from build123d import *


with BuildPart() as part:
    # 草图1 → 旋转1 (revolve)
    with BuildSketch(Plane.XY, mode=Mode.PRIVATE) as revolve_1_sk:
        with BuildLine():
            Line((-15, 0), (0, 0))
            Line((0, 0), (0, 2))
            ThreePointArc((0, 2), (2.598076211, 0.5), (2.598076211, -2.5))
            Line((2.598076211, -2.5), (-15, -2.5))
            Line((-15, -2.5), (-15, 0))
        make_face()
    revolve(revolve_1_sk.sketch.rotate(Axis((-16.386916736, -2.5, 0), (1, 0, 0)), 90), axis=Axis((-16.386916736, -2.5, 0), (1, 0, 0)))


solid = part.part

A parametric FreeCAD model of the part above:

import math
import FreeCAD as App
import Part
import Sketcher
from FreeCAD import Vector
Q = App.Units.Quantity

doc = App.newDocument("Part")
body = doc.addObject("PartDesign::Body", "Body")

sketch1 = body.newObject("Sketcher::SketchObject", "Sketch")
sketch1.AttachmentSupport = (doc.getObject("XY_Plane"), [""])
sketch1.MapMode = "FlatFace"
sketch1.addGeometry([
    Part.LineSegment(Vector(0, 0, 0), Vector(-15, 0, 0)),
    Part.LineSegment(Vector(-15, 0, 0), Vector(-15, -2.5, 0)),
    Part.LineSegment(Vector(-15, -2.5, 0), Vector(2.6, -2.5, 0)),
    Part.ArcOfCircle(Part.Circle(Vector(0, -1, 0), Vector(0, 0, 1), 3), math.radians(-30), math.radians(90)),
    Part.LineSegment(Vector(0, 2, 0), Vector(0, 0, 0)),
], False)
sketch1.addGeometry(Part.LineSegment(Vector(-15, -2.5, 0), Vector(2.6, -2.5, 0)), True)
sketch1.addConstraint([
    Sketcher.Constraint("Coincident", 0, 2, 1, 1),
    Sketcher.Constraint("Coincident", 1, 2, 2, 1),
    Sketcher.Constraint("Coincident", 2, 2, 3, 1),
    Sketcher.Constraint("Coincident", 3, 2, 4, 1),
    Sketcher.Constraint("Coincident", 4, 2, 0, 1),
    Sketcher.Constraint("Horizontal", 0),
    Sketcher.Constraint("Vertical", 1),
    Sketcher.Constraint("Horizontal", 2),
    Sketcher.Constraint("Vertical", 4),
    Sketcher.Constraint("Horizontal", 5),
    Sketcher.Constraint("Coincident", 4, 2, -1, 1),
    Sketcher.Constraint("Coincident", 5, 1, 1, 2),
    Sketcher.Constraint("PointOnObject", 3, 3, -2),
    Sketcher.Constraint("Equal", 2, 5),
    Sketcher.Constraint("Radius", 3, Q("3 mm")),
    Sketcher.Constraint("DistanceX", 0, 2, 0, 1, Q("15 mm")),
    Sketcher.Constraint("DistanceY", 4, 2, 4, 1, Q("2 mm")),
    Sketcher.Constraint("DistanceY", 1, 2, 1, 1, Q("2.5 mm")),
])
revolution = body.newObject("PartDesign::Revolution", "Revolution")
revolution.Profile = sketch1
revolution.ReferenceAxis = (sketch1, ["Axis0"])
revolution.Angle = 360

doc.recompute()
